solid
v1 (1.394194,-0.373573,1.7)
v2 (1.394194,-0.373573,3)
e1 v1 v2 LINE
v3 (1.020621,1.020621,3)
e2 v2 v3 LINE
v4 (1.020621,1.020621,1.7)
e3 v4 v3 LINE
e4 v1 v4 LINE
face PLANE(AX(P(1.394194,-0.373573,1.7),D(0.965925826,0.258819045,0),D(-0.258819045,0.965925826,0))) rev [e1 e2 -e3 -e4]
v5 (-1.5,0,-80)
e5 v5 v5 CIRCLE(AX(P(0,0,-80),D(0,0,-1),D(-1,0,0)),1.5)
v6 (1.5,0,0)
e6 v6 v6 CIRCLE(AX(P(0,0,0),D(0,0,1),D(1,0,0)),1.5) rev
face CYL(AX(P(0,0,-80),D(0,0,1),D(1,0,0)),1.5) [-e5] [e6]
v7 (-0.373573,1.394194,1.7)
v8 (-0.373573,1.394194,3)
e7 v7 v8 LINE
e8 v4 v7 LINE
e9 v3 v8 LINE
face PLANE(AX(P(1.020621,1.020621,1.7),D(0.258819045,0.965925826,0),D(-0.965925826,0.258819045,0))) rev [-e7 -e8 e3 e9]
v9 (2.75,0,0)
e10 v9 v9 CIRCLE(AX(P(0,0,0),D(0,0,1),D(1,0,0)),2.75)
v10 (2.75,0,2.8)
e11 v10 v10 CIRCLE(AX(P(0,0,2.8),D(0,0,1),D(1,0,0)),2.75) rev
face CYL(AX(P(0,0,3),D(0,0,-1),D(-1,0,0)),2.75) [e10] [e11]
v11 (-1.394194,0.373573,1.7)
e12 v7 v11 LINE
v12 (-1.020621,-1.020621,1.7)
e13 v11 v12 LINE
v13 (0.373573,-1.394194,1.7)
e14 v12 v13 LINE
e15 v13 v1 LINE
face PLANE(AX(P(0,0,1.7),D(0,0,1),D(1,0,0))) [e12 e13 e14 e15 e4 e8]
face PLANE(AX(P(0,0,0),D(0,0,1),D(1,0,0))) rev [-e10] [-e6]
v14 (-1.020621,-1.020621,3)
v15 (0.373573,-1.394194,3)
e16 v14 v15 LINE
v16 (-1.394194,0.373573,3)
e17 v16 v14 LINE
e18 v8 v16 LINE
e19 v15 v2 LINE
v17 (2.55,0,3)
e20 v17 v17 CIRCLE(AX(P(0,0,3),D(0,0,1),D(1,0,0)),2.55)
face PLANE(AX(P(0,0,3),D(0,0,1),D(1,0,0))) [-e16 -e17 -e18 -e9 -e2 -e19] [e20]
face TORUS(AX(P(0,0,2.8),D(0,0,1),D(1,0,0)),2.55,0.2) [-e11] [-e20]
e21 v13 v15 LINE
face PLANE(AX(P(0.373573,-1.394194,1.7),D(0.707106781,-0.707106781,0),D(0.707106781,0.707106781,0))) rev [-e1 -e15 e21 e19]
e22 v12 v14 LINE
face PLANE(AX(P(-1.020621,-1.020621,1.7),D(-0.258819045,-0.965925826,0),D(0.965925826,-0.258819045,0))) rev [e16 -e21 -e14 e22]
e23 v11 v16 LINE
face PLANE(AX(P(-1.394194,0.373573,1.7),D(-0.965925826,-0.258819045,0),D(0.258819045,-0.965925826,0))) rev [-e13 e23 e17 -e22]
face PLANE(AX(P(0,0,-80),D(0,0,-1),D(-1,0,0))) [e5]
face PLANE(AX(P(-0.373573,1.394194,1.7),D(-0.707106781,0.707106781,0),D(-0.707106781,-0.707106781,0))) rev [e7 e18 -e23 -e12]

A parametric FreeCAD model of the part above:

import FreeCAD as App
import Part
import Sketcher
from FreeCAD import Vector
Q = App.Units.Quantity


def edges_at(feature, points):
    """Names of the edges that pass closest to the given points."""
    edges = feature.Shape.Edges
    near = lambda p: min(range(len(edges)), key=lambda i: edges[i].distToShape(Part.Vertex(*p))[0])
    return sorted({f"Edge{near(p) + 1}" for p in points})


def add_polygon(sketch, points):
    """Adds a closed chain of lines whose ends are joined by coincident constraints."""
    first, n = sketch.GeometryCount, len(points)
    for a, b in zip(points, points[1:] + points[:1]):
        sketch.addGeometry(Part.LineSegment(App.Vector(*a, 0), App.Vector(*b, 0)), False)
    for i in range(n):
        sketch.addConstraint(Sketcher.Constraint("Coincident", first + i, 2, first + (i + 1) % n, 1))

doc = App.newDocument("Part")
body = doc.addObject("PartDesign::Body", "Body")

sketch1 = body.newObject("Sketcher::SketchObject", "Sketch")
sketch1.AttachmentSupport = (doc.getObject("XY_Plane"), [""])
sketch1.MapMode = "FlatFace"
sketch1.addGeometry(Part.Circle(Vector(0, 0, 0), Vector(0, 0, 1), 2.8), False)
sketch1.addConstraint(Sketcher.Constraint("Coincident", 0, 3, -1, 1))
sketch1.addConstraint(Sketcher.Constraint("Diameter", 0, Q("5.5 mm")))
pad1 = body.newObject("PartDesign::Pad", "Pad")
pad1.Profile = sketch1
pad1.Length = 3

sketch2 = body.newObject("Sketcher::SketchObject", "Sketch001")
sketch2.AttachmentSupport = (doc.getObject("XY_Plane"), [""])
sketch2.MapMode = "FlatFace"
sketch2.AttachmentOffset = App.Placement(Vector(0, 0, 3), App.Rotation())
add_polygon(sketch2, [(-1, -1), (0.4, -1.4), (1.4, -0.4), (1, 1), (-0.4, 1.4), (-1.4, 0.4)])
sketch2.addConstraint(Sketcher.Constraint("Symmetric", 0, 2, 3, 2, -1, 1))
sketch2.addConstraint(Sketcher.Constraint("Symmetric", 1, 2, 4, 2, -1, 1))
sketch2.addConstraint(Sketcher.Constraint("Symmetric", 2, 2, 5, 2, -1, 1))
sketch2.addConstraint(Sketcher.Constraint("Equal", 0, 1))
sketch2.addConstraint(Sketcher.Constraint("Equal", 1, 2))
sketch2.addConstraint(Sketcher.Constraint("Angle", 0, Q("-15 deg")))
sketch2.addConstraint(Sketcher.Constraint("Angle", 1, Q("45 deg")))
sketch2.addConstraint(Sketcher.Constraint("Angle", 2, Q("105 deg")))
sketch2.addConstraint(Sketcher.Constraint("DistanceX", -1, 1, 2, 2, Q("1.020621 mm")))
pocket1 = body.newObject("PartDesign::Pocket", "Pocket")
pocket1.Profile = sketch2
pocket1.Length = 1.3

sketch3 = body.newObject("Sketcher::SketchObject", "Sketch002")
sketch3.AttachmentSupport = (doc.getObject("XY_Plane"), [""])
sketch3.MapMode = "FlatFace"
sketch3.addGeometry(Part.Circle(Vector(0, 0, 0), Vector(0, 0, 1), 1.5), False)
sketch3.addConstraint(Sketcher.Constraint("Coincident", 0, 3, -1, 1))
sketch3.addConstraint(Sketcher.Constraint("Diameter", 0, Q("3 mm")))
pad2 = body.newObject("PartDesign::Pad", "Pad001")
pad2.Profile = sketch3
pad2.Length = 80
pad2.Reversed = True
doc.recompute()

fillet = body.newObject("PartDesign::Fillet", "Fillet")
fillet.Base = (pad2, edges_at(pad2, [(-2.75, 0, 3)]))
fillet.Radius = 0.2

doc.recompute()
